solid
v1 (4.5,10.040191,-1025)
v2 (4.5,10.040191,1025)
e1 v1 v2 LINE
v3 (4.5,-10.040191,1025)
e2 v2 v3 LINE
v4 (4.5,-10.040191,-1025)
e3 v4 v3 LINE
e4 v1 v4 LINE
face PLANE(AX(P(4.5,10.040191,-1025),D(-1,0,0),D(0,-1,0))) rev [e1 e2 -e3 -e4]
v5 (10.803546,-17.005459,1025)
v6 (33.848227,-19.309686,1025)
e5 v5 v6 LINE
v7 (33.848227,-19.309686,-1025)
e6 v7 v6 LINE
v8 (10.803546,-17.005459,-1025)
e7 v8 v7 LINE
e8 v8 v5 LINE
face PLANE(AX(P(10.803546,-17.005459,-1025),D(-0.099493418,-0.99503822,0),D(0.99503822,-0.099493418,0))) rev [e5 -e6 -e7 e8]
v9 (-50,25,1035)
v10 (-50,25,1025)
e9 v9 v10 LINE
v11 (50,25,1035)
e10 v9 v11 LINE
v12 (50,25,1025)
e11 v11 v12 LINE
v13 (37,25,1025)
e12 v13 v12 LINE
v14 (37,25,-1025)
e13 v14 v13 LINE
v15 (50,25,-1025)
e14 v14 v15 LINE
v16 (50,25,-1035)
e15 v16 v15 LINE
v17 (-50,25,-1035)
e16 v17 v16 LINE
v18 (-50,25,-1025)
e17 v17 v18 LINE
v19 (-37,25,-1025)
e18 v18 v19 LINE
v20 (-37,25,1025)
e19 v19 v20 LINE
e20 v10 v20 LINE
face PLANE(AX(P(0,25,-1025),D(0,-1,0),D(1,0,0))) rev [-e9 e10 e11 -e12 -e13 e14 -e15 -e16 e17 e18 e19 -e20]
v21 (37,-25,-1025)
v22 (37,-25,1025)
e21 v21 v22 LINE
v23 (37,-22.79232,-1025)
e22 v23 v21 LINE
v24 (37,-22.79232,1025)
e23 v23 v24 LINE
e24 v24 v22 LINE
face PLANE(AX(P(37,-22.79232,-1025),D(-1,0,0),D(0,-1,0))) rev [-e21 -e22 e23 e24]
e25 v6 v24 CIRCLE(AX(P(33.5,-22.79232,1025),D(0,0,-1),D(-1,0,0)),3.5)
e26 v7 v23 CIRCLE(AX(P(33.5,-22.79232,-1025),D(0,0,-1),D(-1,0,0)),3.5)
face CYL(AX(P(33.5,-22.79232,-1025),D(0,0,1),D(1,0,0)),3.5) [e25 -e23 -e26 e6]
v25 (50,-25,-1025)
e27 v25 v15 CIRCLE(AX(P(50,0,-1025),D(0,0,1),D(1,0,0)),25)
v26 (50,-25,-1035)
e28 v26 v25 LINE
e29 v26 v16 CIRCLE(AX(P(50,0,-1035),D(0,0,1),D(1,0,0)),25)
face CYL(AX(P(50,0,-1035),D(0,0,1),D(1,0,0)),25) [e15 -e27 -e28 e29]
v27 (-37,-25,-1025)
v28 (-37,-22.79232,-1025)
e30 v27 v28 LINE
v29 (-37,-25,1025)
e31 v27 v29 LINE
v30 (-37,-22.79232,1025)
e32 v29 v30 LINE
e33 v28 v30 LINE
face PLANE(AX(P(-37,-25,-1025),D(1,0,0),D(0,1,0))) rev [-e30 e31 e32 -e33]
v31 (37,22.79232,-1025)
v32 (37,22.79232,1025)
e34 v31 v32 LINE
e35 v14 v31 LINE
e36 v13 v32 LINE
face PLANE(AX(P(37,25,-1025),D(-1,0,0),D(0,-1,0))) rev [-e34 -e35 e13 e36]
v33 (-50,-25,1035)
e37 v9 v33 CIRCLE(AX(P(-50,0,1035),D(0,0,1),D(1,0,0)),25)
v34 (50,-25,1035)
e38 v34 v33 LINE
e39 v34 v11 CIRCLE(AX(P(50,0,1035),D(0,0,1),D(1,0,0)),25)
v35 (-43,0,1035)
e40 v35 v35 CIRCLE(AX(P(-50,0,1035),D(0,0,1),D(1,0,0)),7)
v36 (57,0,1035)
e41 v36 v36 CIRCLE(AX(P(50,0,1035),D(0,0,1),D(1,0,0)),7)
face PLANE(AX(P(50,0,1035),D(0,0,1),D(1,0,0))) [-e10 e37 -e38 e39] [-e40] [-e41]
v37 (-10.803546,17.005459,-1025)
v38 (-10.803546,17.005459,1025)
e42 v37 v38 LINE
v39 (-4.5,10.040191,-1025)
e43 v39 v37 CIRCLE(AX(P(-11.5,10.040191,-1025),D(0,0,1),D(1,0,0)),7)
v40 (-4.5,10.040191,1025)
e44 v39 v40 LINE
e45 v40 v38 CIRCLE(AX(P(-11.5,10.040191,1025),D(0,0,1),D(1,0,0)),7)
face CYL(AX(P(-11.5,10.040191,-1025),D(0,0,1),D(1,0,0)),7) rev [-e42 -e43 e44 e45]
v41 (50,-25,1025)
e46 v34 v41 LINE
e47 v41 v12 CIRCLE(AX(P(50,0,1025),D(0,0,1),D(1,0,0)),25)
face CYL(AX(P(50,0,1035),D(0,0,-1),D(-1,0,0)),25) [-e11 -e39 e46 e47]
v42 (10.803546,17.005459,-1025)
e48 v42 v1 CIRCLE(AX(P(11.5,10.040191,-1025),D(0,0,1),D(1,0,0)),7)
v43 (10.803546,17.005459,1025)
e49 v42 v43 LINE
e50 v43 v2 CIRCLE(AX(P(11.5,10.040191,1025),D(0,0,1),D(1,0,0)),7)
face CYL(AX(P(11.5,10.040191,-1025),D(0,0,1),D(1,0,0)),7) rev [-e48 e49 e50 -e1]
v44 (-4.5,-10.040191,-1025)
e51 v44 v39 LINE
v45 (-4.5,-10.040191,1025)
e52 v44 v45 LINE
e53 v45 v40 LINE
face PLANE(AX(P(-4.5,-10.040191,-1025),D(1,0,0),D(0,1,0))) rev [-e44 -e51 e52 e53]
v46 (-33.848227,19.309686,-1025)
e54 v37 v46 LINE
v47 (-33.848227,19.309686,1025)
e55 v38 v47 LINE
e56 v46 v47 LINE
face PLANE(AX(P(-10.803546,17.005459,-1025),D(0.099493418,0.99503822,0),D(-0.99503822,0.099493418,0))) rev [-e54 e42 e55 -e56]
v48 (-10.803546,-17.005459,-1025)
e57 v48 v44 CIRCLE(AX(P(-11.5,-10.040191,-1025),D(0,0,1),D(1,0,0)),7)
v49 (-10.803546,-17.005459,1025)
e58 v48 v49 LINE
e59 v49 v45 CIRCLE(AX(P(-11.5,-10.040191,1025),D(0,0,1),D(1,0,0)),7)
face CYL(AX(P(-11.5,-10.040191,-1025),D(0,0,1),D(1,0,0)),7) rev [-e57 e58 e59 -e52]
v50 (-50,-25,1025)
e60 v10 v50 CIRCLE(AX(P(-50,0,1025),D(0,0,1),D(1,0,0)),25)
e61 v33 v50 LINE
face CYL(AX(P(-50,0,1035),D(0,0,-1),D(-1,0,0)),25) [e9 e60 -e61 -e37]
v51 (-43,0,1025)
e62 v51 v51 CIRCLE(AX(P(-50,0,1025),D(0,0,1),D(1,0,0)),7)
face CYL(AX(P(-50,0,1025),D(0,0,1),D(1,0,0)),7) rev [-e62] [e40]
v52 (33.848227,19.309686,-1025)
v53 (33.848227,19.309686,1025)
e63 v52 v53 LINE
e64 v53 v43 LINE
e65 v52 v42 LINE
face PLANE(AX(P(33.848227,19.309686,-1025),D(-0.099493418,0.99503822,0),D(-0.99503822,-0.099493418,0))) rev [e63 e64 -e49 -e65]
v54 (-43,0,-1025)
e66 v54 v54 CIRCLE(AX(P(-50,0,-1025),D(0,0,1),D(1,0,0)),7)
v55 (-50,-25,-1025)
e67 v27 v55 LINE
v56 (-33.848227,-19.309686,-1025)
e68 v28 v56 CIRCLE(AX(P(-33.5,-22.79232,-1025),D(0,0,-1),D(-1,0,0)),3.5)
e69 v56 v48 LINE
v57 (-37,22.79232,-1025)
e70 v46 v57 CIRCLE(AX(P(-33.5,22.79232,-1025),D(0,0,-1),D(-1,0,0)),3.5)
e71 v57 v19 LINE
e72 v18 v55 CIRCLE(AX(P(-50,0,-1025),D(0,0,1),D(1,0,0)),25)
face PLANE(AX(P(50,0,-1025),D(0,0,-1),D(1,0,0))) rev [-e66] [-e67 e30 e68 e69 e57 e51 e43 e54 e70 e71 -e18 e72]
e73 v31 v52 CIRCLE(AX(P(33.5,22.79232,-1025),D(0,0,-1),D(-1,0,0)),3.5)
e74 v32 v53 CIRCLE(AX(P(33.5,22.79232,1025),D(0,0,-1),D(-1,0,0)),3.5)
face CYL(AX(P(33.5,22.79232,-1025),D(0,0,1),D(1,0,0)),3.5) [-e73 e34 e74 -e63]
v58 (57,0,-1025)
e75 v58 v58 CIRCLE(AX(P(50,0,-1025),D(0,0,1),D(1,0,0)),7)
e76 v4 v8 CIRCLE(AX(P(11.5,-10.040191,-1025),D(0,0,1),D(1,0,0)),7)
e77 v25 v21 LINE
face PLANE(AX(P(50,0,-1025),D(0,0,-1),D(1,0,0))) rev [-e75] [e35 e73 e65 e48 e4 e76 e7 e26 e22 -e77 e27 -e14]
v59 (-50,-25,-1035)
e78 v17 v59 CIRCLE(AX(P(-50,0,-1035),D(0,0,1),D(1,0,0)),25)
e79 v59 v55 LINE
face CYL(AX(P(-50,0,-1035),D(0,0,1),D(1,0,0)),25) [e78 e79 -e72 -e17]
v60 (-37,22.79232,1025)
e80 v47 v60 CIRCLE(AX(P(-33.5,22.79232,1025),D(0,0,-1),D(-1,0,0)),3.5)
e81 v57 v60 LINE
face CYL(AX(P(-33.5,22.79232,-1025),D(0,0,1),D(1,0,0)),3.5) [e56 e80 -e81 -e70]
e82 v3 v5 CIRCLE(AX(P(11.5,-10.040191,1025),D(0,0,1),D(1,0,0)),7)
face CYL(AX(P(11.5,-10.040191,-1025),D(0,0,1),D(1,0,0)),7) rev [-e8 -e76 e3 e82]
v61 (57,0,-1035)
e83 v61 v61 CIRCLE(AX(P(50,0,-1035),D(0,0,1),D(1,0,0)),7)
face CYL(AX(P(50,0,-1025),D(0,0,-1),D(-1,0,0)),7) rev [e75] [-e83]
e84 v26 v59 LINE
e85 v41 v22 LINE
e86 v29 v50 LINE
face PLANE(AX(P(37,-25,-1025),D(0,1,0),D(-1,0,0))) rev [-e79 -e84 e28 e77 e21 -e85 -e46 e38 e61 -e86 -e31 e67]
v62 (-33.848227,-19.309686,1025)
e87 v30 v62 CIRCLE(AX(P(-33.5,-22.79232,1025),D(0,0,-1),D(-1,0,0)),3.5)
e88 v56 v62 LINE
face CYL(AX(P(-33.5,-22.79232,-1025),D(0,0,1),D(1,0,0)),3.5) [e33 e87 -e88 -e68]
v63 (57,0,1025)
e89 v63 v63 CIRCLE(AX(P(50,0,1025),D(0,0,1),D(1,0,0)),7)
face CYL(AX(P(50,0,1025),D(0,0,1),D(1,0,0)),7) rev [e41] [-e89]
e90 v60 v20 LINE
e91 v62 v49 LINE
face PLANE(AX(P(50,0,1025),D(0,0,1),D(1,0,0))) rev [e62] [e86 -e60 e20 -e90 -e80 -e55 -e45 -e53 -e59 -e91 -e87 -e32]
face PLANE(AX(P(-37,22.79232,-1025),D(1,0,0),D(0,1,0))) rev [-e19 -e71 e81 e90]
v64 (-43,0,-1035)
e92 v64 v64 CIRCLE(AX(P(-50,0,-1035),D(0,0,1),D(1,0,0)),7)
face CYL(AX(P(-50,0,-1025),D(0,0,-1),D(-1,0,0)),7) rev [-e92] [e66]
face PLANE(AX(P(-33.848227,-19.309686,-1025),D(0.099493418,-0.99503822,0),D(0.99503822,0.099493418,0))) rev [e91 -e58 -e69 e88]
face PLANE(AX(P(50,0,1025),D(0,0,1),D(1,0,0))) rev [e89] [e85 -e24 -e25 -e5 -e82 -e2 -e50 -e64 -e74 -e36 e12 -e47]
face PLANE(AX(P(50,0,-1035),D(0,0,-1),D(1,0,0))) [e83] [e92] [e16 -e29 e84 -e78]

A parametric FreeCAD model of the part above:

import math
import FreeCAD as App
import Part
import Sketcher

V = App.Vector
Q = App.Units.Quantity

doc = App.newDocument("Part")
body = doc.addObject("PartDesign::Body", "Body")

sketch1 = body.newObject("Sketcher::SketchObject", "Sketch")
sketch1.AttachmentSupport = (doc.getObject("XY_Plane"), [""])
sketch1.MapMode = "FlatFace"
sketch1.AttachmentOffset = App.Placement(V(0, 0, 1025), App.Rotation())
sketch1.addGeometry(Part.LineSegment(V(0, 25, 0), V(37, 25, 0)), False)
sketch1.addGeometry(Part.LineSegment(V(37, 25, 0), V(37, 22.79232, 0)), False)
sketch1.addGeometry(Part.ArcOfCircle(Part.Circle(V(33.5, 22.79232, 0), V(0, 0, 1), 3.5), math.radians(-84.29), math.radians(0)), False)
sketch1.addGeometry(Part.LineSegment(V(33.848227, 19.309686, 0), V(10.803546, 17.005459, 0)), False)
sketch1.addGeometry(Part.ArcOfCircle(Part.Circle(V(11.5, 10.040191, 0), V(0, 0, 1), 7), math.radians(95.71), math.radians(180)), False)
sketch1.addGeometry(Part.LineSegment(V(4.5, 10.040191, 0), V(4.5, -10.040191, 0)), False)
sketch1.addGeometry(Part.ArcOfCircle(Part.Circle(V(11.5, -10.040191, 0), V(0, 0, 1), 7), math.radians(-180), math.radians(-95.71)), False)
sketch1.addGeometry(Part.LineSegment(V(10.803546, -17.005459, 0), V(33.848227, -19.309686, 0)), False)
sketch1.addGeometry(Part.ArcOfCircle(Part.Circle(V(33.5, -22.79232, 0), V(0, 0, 1), 3.5), math.radians(0), math.radians(84.29)), False)
sketch1.addGeometry(Part.LineSegment(V(37, -22.79232, 0), V(37, -25, 0)), False)
sketch1.addGeometry(Part.LineSegment(V(37, -25, 0), V(0, -25, 0)), False)
sketch1.addGeometry(Part.LineSegment(V(0, -25, 0), V(0, 25, 0)), False)
sketch1.addConstraint(Sketcher.Constraint("Coincident", 0, 2, 1, 1))
sketch1.addConstraint(Sketcher.Constraint("Tangent", 1, 2, 2, 2))
sketch1.addConstraint(Sketcher.Constraint("Tangent", 2, 1, 3, 1))
sketch1.addConstraint(Sketcher.Constraint("Tangent", 3, 2, 4, 1))
sketch1.addConstraint(Sketcher.Constraint("Tangent", 4, 2, 5, 1))
sketch1.addConstraint(Sketcher.Constraint("Tangent", 5, 2, 6, 1))
sketch1.addConstraint(Sketcher.Constraint("Tangent", 6, 2, 7, 1))
sketch1.addConstraint(Sketcher.Constraint("Tangent", 7, 2, 8, 2))
sketch1.addConstraint(Sketcher.Constraint("Tangent", 8, 1, 9, 1))
sketch1.addConstraint(Sketcher.Constraint("Coincident", 9, 2, 10, 1))
sketch1.addConstraint(Sketcher.Constraint("Coincident", 10, 2, 11, 1))
sketch1.addConstraint(Sketcher.Constraint("Coincident", 11, 2, 0, 1))
sketch1.addConstraint(Sketcher.Constraint("Horizontal", 0))
sketch1.addConstraint(Sketcher.Constraint("Vertical", 1))
sketch1.addConstraint(Sketcher.Constraint("Vertical", 5))
sketch1.addConstraint(Sketcher.Constraint("Vertical", 9))
sketch1.addConstraint(Sketcher.Constraint("Horizontal", 10))
sketch1.addConstraint(Sketcher.Constraint("Vertical", 11))
sketch1.addConstraint(Sketcher.Constraint("Equal", 4, 6))
sketch1.addConstraint(Sketcher.Constraint("Equal", 2, 8))
sketch1.addConstraint(Sketcher.Constraint("Symmetric", 10, 2, 11, 2, -1, 1))
sketch1.addConstraint(Sketcher.Constraint("Symmetric", 2, 3, 8, 3, -1))
sketch1.addConstraint(Sketcher.Constraint("Vertical", 3, 2, 6, 2))
sketch1.addConstraint(Sketcher.Constraint("Radius", 4, Q("7 mm")))
sketch1.addConstraint(Sketcher.Constraint("Radius", 2, Q("3.5 mm")))
sketch1.addConstraint(Sketcher.Constraint("DistanceX", 0, 1, 0, 2, Q("37 mm")))
sketch1.addConstraint(Sketcher.Constraint("DistanceY", 11, 1, 11, 2, Q("50 mm")))
sketch1.addConstraint(Sketcher.Constraint("DistanceX", 4, 3, 2, 3, Q("22 mm")))
sketch1.addConstraint(Sketcher.Constraint("Angle", 3, Q("-174.29 deg")))
sketch1.addConstraint(Sketcher.Constraint("DistanceY", 1, 2, 1, 1, Q("2.20768 mm")))
pad1 = body.newObject("PartDesign::Pad", "Pad")
pad1.Profile = sketch1
pad1.Length = 2050
pad1.Reversed = True
body2 = doc.addObject("PartDesign::Body", "Body001")

sketch2 = body2.newObject("Sketcher::SketchObject", "Sketch001")
sketch2.AttachmentSupport = (doc.getObject("XY_Plane001"), [""])
sketch2.MapMode = "FlatFace"
sketch2.AttachmentOffset = App.Placement(V(0, 0, 1025), App.Rotation())
sketch2.addGeometry(Part.LineSegment(V(0, -25, 0), V(-37, -25, 0)), False)
sketch2.addGeometry(Part.LineSegment(V(-37, -25, 0), V(-37, -22.79232, 0)), False)
sketch2.addGeometry(Part.ArcOfCircle(Part.Circle(V(-33.5, -22.79232, 0), V(0, 0, 1), 3.5), math.radians(95.71), math.radians(180)), False)
sketch2.addGeometry(Part.LineSegment(V(-33.848227, -19.309686, 0), V(-10.803546, -17.005459, 0)), False)
sketch2.addGeometry(Part.ArcOfCircle(Part.Circle(V(-11.5, -10.040191, 0), V(0, 0, 1), 7), math.radians(-84.29), math.radians(0)), False)
sketch2.addGeometry(Part.LineSegment(V(-4.5, -10.040191, 0), V(-4.5, 10.040191, 0)), False)
sketch2.addGeometry(Part.ArcOfCircle(Part.Circle(V(-11.5, 10.040191, 0), V(0, 0, 1), 7), math.radians(0), math.radians(84.29)), False)
sketch2.addGeometry(Part.LineSegment(V(-10.803546, 17.005459, 0), V(-33.848227, 19.309686, 0)), False)
sketch2.addGeometry(Part.ArcOfCircle(Part.Circle(V(-33.5, 22.79232, 0), V(0, 0, 1), 3.5), math.radians(-180), math.radians(-95.71)), False)
sketch2.addGeometry(Part.LineSegment(V(-37, 22.79232, 0), V(-37, 25, 0)), False)
sketch2.addGeometry(Part.LineSegment(V(-37, 25, 0), V(0, 25, 0)), False)
sketch2.addGeometry(Part.LineSegment(V(0, 25, 0), V(0, -25, 0)), False)
sketch2.addConstraint(Sketcher.Constraint("Coincident", 0, 2, 1, 1))
sketch2.addConstraint(Sketcher.Constraint("Tangent", 1, 2, 2, 2))
sketch2.addConstraint(Sketcher.Constraint("Tangent", 2, 1, 3, 1))
sketch2.addConstraint(Sketcher.Constraint("Tangent", 3, 2, 4, 1))
sketch2.addConstraint(Sketcher.Constraint("Tangent", 4, 2, 5, 1))
sketch2.addConstraint(Sketcher.Constraint("Tangent", 5, 2, 6, 1))
sketch2.addConstraint(Sketcher.Constraint("Tangent", 6, 2, 7, 1))
sketch2.addConstraint(Sketcher.Constraint("Tangent", 7, 2, 8, 2))
sketch2.addConstraint(Sketcher.Constraint("Tangent", 8, 1, 9, 1))
sketch2.addConstraint(Sketcher.Constraint("Coincident", 9, 2, 10, 1))
sketch2.addConstraint(Sketcher.Constraint("Coincident", 10, 2, 11, 1))
sketch2.addConstraint(Sketcher.Constraint("Coincident", 11, 2, 0, 1))
sketch2.addConstraint(Sketcher.Constraint("Horizontal", 0))
sketch2.addConstraint(Sketcher.Constraint("Vertical", 1))
sketch2.addConstraint(Sketcher.Constraint("Vertical", 5))
sketch2.addConstraint(Sketcher.Constraint("Vertical", 9))
sketch2.addConstraint(Sketcher.Constraint("Horizontal", 10))
sketch2.addConstraint(Sketcher.Constraint("Vertical", 11))
sketch2.addConstraint(Sketcher.Constraint("Equal", 4, 6))
sketch2.addConstraint(Sketcher.Constraint("Equal", 2, 8))
sketch2.addConstraint(Sketcher.Constraint("Symmetric", 10, 2, 11, 2, -1, 1))
sketch2.addConstraint(Sketcher.Constraint("Symmetric", 2, 3, 8, 3, -1))
sketch2.addConstraint(Sketcher.Constraint("Vertical", 3, 2, 6, 2))
sketch2.addConstraint(Sketcher.Constraint("Radius", 4, Q("7 mm")))
sketch2.addConstraint(Sketcher.Constraint("Radius", 2, Q("3.5 mm")))
sketch2.addConstraint(Sketcher.Constraint("DistanceX", 0, 2, 0, 1, Q("37 mm")))
sketch2.addConstraint(Sketcher.Constraint("DistanceY", 11, 2, 11, 1, Q("50 mm")))
sketch2.addConstraint(Sketcher.Constraint("DistanceX", 2, 3, 4, 3, Q("22 mm")))
sketch2.addConstraint(Sketcher.Constraint("Angle", 3, Q("5.71 deg")))
sketch2.addConstraint(Sketcher.Constraint("DistanceY", 1, 1, 1, 2, Q("2.20768 mm")))
pad2 = body2.newObject("PartDesign::Pad", "Pad001")
pad2.Profile = sketch2
pad2.Length = 2050
pad2.Reversed = True
doc.recompute()

boolean = body.newObject("PartDesign::Boolean", "Boolean")
boolean.Type = "Fuse"
boolean.addObjects([body2])

sketch3 = body.newObject("Sketcher::SketchObject", "Sketch002")
sketch3.AttachmentSupport = (doc.getObject("XY_Plane"), [""])
sketch3.MapMode = "FlatFace"
sketch3.AttachmentOffset = App.Placement(V(0, 0, 1025), App.Rotation())
sketch3.addGeometry(Part.LineSegment(V(-50, -25, 0), V(50, -25, 0)), False)
sketch3.addGeometry(Part.ArcOfCircle(Part.Circle(V(50, 0, 0), V(0, 0, 1), 25), math.radians(-90), math.radians(90)), False)
sketch3.addGeometry(Part.LineSegment(V(50, 25, 0), V(-50, 25, 0)), False)
sketch3.addGeometry(Part.ArcOfCircle(Part.Circle(V(-50, 0, 0), V(0, 0, 1), 25), math.radians(90), math.radians(270)), False)
sketch3.addConstraint(Sketcher.Constraint("Tangent", 0, 2, 1, 1))
sketch3.addConstraint(Sketcher.Constraint("Tangent", 1, 2, 2, 1))
sketch3.addConstraint(Sketcher.Constraint("Tangent", 2, 2, 3, 1))
sketch3.addConstraint(Sketcher.Constraint("Tangent", 3, 2, 0, 1))
sketch3.addConstraint(Sketcher.Constraint("Horizontal", 0))
sketch3.addConstraint(Sketcher.Constraint("Horizontal", 2))
sketch3.addConstraint(Sketcher.Constraint("Symmetric", 1, 3, 3, 3, -1, 1))
sketch3.addConstraint(Sketcher.Constraint("Radius", 1, Q("25 mm")))
sketch3.addConstraint(Sketcher.Constraint("DistanceX", 0, 1, 0, 2, Q("100 mm")))
pad3 = body.newObject("PartDesign::Pad", "Pad002")
pad3.Profile = sketch3
pad3.Length = 10

sketch4 = body.newObject("Sketcher::SketchObject", "Sketch003")
sketch4.AttachmentSupport = (doc.getObject("XY_Plane"), [""])
sketch4.MapMode = "FlatFace"
sketch4.AttachmentOffset = App.Placement(V(0, 0, 1035), App.Rotation())
sketch4.addGeometry(Part.Circle(V(-50, 0, 0), V(0, 0, 1), 7), False)
sketch4.addGeometry(Part.Circle(V(50, 0, 0), V(0, 0, 1), 7), False)
sketch4.addConstraint(Sketcher.Constraint("Equal", 0, 1))
sketch4.addConstraint(Sketcher.Constraint("Symmetric", 0, 3, 1, 3, -1, 1))
sketch4.addConstraint(Sketcher.Constraint("PointOnObject", 0, 3, -1))
sketch4.addConstraint(Sketcher.Constraint("Diameter", 0, Q("14 mm")))
sketch4.addConstraint(Sketcher.Constraint("DistanceX", 0, 3, -1, 1, Q("50 mm")))
pocket1 = body.newObject("PartDesign::Pocket", "Pocket")
pocket1.Profile = sketch4
pocket1.Length = 10
doc.recompute()

mirrored = body.newObject("PartDesign::Mirrored", "Mirrored")
mirrored.Originals = [pad3, pocket1]
mirrored.MirrorPlane = (doc.getObject("XY_Plane"), [""])
body.Tip = mirrored

doc.recompute()
